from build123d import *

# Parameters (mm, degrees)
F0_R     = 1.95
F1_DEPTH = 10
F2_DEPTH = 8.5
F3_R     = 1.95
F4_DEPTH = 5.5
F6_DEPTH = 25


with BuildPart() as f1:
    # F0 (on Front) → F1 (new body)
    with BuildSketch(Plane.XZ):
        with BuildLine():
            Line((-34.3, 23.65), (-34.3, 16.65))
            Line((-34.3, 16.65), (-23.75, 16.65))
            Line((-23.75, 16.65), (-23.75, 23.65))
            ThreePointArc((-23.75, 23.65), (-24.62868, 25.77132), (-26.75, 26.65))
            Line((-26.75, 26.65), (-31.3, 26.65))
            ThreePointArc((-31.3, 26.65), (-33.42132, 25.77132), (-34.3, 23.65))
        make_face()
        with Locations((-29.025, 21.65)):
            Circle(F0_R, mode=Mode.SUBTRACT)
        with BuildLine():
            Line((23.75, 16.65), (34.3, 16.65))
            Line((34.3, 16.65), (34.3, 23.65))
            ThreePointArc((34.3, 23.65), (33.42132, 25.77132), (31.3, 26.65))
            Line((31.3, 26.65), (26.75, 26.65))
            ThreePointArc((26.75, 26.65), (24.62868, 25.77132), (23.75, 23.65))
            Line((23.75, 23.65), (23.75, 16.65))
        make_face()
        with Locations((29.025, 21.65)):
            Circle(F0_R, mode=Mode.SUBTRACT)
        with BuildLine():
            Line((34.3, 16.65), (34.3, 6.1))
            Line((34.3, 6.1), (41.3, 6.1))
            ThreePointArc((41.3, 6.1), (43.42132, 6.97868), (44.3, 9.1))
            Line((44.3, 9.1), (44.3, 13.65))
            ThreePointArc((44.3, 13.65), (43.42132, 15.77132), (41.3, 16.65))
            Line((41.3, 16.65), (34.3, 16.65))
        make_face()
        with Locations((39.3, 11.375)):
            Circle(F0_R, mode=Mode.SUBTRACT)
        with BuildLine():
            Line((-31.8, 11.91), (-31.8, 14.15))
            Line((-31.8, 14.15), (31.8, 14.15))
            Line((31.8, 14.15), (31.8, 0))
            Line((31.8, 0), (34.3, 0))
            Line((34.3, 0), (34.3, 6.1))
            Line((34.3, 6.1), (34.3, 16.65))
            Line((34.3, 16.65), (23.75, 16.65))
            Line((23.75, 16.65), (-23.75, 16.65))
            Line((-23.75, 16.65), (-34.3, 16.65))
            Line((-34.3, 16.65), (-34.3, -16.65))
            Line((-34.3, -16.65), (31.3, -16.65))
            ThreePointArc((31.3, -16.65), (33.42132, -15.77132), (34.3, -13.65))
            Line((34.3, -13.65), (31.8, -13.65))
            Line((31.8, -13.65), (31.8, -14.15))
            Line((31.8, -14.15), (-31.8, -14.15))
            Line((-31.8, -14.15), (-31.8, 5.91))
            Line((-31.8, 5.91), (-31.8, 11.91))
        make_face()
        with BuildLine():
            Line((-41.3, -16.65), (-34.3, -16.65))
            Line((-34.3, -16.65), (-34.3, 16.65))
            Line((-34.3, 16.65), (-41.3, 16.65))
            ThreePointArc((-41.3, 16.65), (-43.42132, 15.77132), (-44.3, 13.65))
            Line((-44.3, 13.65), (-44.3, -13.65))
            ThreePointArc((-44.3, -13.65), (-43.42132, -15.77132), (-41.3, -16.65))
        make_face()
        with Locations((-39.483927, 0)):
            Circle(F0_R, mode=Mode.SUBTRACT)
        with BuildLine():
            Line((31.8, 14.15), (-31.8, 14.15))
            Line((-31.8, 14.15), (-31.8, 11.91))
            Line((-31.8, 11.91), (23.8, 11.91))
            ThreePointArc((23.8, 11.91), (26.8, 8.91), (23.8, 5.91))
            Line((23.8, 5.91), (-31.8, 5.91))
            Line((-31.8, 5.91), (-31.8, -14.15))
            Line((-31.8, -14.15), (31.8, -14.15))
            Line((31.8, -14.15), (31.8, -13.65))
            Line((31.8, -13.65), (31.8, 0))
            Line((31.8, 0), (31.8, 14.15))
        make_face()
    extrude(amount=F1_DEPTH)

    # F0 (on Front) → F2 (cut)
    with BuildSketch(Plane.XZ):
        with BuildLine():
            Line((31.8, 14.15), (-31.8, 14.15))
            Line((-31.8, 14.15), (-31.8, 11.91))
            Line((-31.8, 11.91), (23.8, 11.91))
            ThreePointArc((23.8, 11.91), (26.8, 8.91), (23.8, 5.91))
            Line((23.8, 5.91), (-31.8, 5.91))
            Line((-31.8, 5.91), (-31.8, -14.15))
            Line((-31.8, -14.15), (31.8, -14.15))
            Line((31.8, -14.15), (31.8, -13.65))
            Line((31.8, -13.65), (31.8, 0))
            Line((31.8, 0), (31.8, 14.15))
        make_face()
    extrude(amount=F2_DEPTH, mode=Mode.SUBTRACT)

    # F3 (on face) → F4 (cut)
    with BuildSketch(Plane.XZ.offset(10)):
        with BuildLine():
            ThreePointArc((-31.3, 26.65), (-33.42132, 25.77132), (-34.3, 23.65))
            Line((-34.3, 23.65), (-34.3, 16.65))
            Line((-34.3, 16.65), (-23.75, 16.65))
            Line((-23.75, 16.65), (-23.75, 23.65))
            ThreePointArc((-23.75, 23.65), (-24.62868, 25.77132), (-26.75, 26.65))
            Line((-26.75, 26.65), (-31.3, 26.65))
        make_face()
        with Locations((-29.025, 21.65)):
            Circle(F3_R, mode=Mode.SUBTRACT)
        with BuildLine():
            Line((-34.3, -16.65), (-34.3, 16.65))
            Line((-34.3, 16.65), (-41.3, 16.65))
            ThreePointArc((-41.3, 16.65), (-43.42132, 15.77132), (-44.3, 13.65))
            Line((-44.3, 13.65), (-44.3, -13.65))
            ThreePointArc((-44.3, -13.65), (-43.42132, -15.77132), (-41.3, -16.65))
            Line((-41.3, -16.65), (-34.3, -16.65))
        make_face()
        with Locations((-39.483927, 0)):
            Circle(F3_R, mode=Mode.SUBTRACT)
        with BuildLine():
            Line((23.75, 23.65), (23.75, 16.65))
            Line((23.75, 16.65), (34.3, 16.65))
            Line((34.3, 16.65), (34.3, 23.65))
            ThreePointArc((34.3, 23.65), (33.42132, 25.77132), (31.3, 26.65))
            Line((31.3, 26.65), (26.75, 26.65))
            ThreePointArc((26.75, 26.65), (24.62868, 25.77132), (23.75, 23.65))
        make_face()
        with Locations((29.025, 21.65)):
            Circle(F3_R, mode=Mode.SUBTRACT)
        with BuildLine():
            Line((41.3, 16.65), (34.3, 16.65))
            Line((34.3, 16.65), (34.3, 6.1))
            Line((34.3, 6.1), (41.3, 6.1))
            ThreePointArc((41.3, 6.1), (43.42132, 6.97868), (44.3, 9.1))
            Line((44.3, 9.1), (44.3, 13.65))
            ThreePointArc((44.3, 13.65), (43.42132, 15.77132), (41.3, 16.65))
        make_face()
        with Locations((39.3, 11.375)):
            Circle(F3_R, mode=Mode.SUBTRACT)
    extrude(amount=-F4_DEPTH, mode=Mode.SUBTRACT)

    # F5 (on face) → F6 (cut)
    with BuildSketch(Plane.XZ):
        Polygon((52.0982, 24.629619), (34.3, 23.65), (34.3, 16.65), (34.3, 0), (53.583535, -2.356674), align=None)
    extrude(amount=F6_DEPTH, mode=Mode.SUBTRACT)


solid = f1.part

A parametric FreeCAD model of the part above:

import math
import FreeCAD as App
import Part
import Sketcher
Q = App.Units.Quantity


def add_polygon(sketch, points):
    """Adds a closed chain of lines whose ends are joined by coincident constraints."""
    first, n = sketch.GeometryCount, len(points)
    for a, b in zip(points, points[1:] + points[:1]):
        sketch.addGeometry(Part.LineSegment(App.Vector(*a, 0), App.Vector(*b, 0)), False)
    for i in range(n):
        sketch.addConstraint(Sketcher.Constraint("Coincident", first + i, 2, first + (i + 1) % n, 1))

doc = App.newDocument("Part")
body = doc.addObject("PartDesign::Body", "Body")

# Sketch on XZ plane
sketch1 = body.newObject("Sketcher::SketchObject", "Sketch")
sketch1.AttachmentSupport = (doc.getObject("XZ_Plane"), [""])
sketch1.MapMode = "FlatFace"
sketch1.addGeometry([
    Part.LineSegment(App.Vector(-34.3, 23.6, 0), App.Vector(-34.3, 16.6, 0)),  # 0
    Part.LineSegment(App.Vector(-34.3, 16.6, 0), App.Vector(-41.3, 16.6, 0)),  # 1
    Part.ArcOfCircle(Part.Circle(App.Vector(-41.3, 13.6, 0), App.Vector(0, 0, 1), 3), math.radians(90), math.radians(180)),  # 2
    Part.LineSegment(App.Vector(-44.3, 13.7, 0), App.Vector(-44.3, -13.7, 0)),  # 3
    Part.ArcOfCircle(Part.Circle(App.Vector(-41.3, -13.6, 0), App.Vector(0, 0, 1), 3), math.radians(-180), math.radians(-90)),  # 4
    Part.LineSegment(App.Vector(-41.3, -16.6, 0), App.Vector(31.3, -16.6, 0)),  # 5
    Part.ArcOfCircle(Part.Circle(App.Vector(31.3, -13.6, 0), App.Vector(0, 0, 1), 3), math.radians(-90), math.radians(0)),  # 6
    Part.LineSegment(App.Vector(34.3, -13.7, 0), App.Vector(31.8, -13.7, 0)),  # 7
    Part.LineSegment(App.Vector(31.8, -13.7, 0), App.Vector(31.8, 0, 0)),  # 8
    Part.LineSegment(App.Vector(31.8, 0, 0), App.Vector(34.3, 0, 0)),  # 9
    Part.LineSegment(App.Vector(34.3, 0, 0), App.Vector(34.3, 6.1, 0)),  # 10
    Part.LineSegment(App.Vector(34.3, 6.1, 0), App.Vector(41.3, 6.1, 0)),  # 11
    Part.ArcOfCircle(Part.Circle(App.Vector(41.3, 9.1, 0), App.Vector(0, 0, 1), 3), math.radians(-90), math.radians(0)),  # 12
    Part.LineSegment(App.Vector(44.3, 9.1, 0), App.Vector(44.3, 13.7, 0)),  # 13
    Part.ArcOfCircle(Part.Circle(App.Vector(41.3, 13.6, 0), App.Vector(0, 0, 1), 3), math.radians(0), math.radians(90)),  # 14
    Part.LineSegment(App.Vector(41.3, 16.6, 0), App.Vector(34.3, 16.6, 0)),  # 15
    Part.LineSegment(App.Vector(34.3, 16.6, 0), App.Vector(34.3, 23.6, 0)),  # 16
    Part.ArcOfCircle(Part.Circle(App.Vector(31.3, 23.6, 0), App.Vector(0, 0, 1), 3), math.radians(0), math.radians(90)),  # 17
    Part.LineSegment(App.Vector(31.3, 26.6, 0), App.Vector(26.8, 26.6, 0)),  # 18
    Part.ArcOfCircle(Part.Circle(App.Vector(26.8, 23.6, 0), App.Vector(0, 0, 1), 3), math.radians(90), math.radians(180)),  # 19
    Part.LineSegment(App.Vector(23.8, 23.6, 0), App.Vector(23.8, 16.6, 0)),  # 20
    Part.LineSegment(App.Vector(23.8, 16.6, 0), App.Vector(-23.8, 16.6, 0)),  # 21
    Part.LineSegment(App.Vector(-23.8, 16.6, 0), App.Vector(-23.8, 23.6, 0)),  # 22
    Part.ArcOfCircle(Part.Circle(App.Vector(-26.8, 23.6, 0), App.Vector(0, 0, 1), 3), math.radians(0), math.radians(90)),  # 23
    Part.LineSegment(App.Vector(-26.8, 26.6, 0), App.Vector(-31.3, 26.6, 0)),  # 24
    Part.ArcOfCircle(Part.Circle(App.Vector(-31.3, 23.6, 0), App.Vector(0, 0, 1), 3), math.radians(90), math.radians(180)),  # 25
    Part.LineSegment(App.Vector(-31.8, 5.9, 0), App.Vector(-31.8, 11.9, 0)),  # 26
    Part.LineSegment(App.Vector(-31.8, 11.9, 0), App.Vector(23.8, 11.9, 0)),  # 27
    Part.ArcOfCircle(Part.Circle(App.Vector(23.8, 8.9, 0), App.Vector(0, 0, 1), 3), math.radians(-90), math.radians(90)),  # 28
    Part.LineSegment(App.Vector(23.8, 5.9, 0), App.Vector(-31.8, 5.9, 0)),  # 29
    Part.Circle(App.Vector(-39.5, 0, 0), App.Vector(0, 0, 1), 1.9),  # 30
    Part.Circle(App.Vector(-29, 21.6, 0), App.Vector(0, 0, 1), 1.9),  # 31
    Part.Circle(App.Vector(39.3, 11.4, 0), App.Vector(0, 0, 1), 1.9),  # 32
    Part.Circle(App.Vector(29, 21.6, 0), App.Vector(0, 0, 1), 1.9),  # 33
], False)
sketch1.addConstraint([
    Sketcher.Constraint("Coincident", 0, 2, 1, 1),
    Sketcher.Constraint("Tangent", 1, 2, 2, 1),
    Sketcher.Constraint("Tangent", 2, 2, 3, 1),
    Sketcher.Constraint("Tangent", 3, 2, 4, 1),
    Sketcher.Constraint("Tangent", 4, 2, 5, 1),
    Sketcher.Constraint("Tangent", 5, 2, 6, 1),
    Sketcher.Constraint("Coincident", 6, 2, 7, 1),
    Sketcher.Constraint("Coincident", 7, 2, 8, 1),
    Sketcher.Constraint("Coincident", 8, 2, 9, 1),
    Sketcher.Constraint("Coincident", 9, 2, 10, 1),
    Sketcher.Constraint("Coincident", 10, 2, 11, 1),
    Sketcher.Constraint("Tangent", 11, 2, 12, 1),
    Sketcher.Constraint("Tangent", 12, 2, 13, 1),
    Sketcher.Constraint("Tangent", 13, 2, 14, 1),
    Sketcher.Constraint("Tangent", 14, 2, 15, 1),
    Sketcher.Constraint("Coincident", 15, 2, 16, 1),
    Sketcher.Constraint("Tangent", 16, 2, 17, 1),
    Sketcher.Constraint("Tangent", 17, 2, 18, 1),
    Sketcher.Constraint("Tangent", 18, 2, 19, 1),
    Sketcher.Constraint("Tangent", 19, 2, 20, 1),
    Sketcher.Constraint("Coincident", 20, 2, 21, 1),
    Sketcher.Constraint("Coincident", 21, 2, 22, 1),
    Sketcher.Constraint("Tangent", 22, 2, 23, 1),
    Sketcher.Constraint("Tangent", 23, 2, 24, 1),
    Sketcher.Constraint("Tangent", 24, 2, 25, 1),
    Sketcher.Constraint("Tangent", 25, 2, 0, 1),
    Sketcher.Constraint("Coincident", 26, 2, 27, 1),
    Sketcher.Constraint("Tangent", 27, 2, 28, 2),
    Sketcher.Constraint("Tangent", 28, 1, 29, 1),
    Sketcher.Constraint("Coincident", 29, 2, 26, 1),
    Sketcher.Constraint("Vertical", 0),
    Sketcher.Constraint("Horizontal", 1),
    Sketcher.Constraint("Vertical", 3),
    Sketcher.Constraint("Horizontal", 5),
    Sketcher.Constraint("Horizontal", 7),
    Sketcher.Constraint("Vertical", 8),
    Sketcher.Constraint("Horizontal", 9),
    Sketcher.Constraint("Vertical", 10),
    Sketcher.Constraint("Horizontal", 11),
    Sketcher.Constraint("Vertical", 13),
    Sketcher.Constraint("Horizontal", 15),
    Sketcher.Constraint("Vertical", 16),
    Sketcher.Constraint("Horizontal", 18),
    Sketcher.Constraint("Vertical", 20),
    Sketcher.Constraint("Horizontal", 21),
    Sketcher.Constraint("Vertical", 22),
    Sketcher.Constraint("Horizontal", 24),
    Sketcher.Constraint("Vertical", 26),
    Sketcher.Constraint("Horizontal", 27),
    Sketcher.Constraint("Horizontal", 29),
    Sketcher.Constraint("Equal", 2, 4),
    Sketcher.Constraint("Equal", 4, 6),
    Sketcher.Constraint("Equal", 6, 12),
    Sketcher.Constraint("Equal", 12, 14),
    Sketcher.Constraint("Equal", 14, 17),
    Sketcher.Constraint("Equal", 17, 19),
    Sketcher.Constraint("Equal", 19, 23),
    Sketcher.Constraint("Equal", 23, 25),
    Sketcher.Constraint("Equal", 25, 28),
    Sketcher.Constraint("Equal", 30, 31),
    Sketcher.Constraint("Equal", 31, 32),
    Sketcher.Constraint("Equal", 32, 33),
    Sketcher.Constraint("Symmetric", 4, 3, 14, 3, -1, 1),
    Sketcher.Constraint("Symmetric", 19, 3, 23, 3, -2),
    Sketcher.Constraint("Symmetric", 31, 3, 33, 3, -2),
    Sketcher.Constraint("Symmetric", 0, 2, 15, 2, -2),
    Sketcher.Constraint("PointOnObject", 30, 3, -1),
    Sketcher.Constraint("PointOnObject", 8, 2, -1),
    Sketcher.Constraint("Horizontal", 3, 2, 6, 2),
    Sketcher.Constraint("Horizontal", 15, 2, 20, 2),
    Sketcher.Constraint("Vertical", 6, 3, 17, 3),
    Sketcher.Constraint("Vertical", 6, 2, 9, 2),
    Sketcher.Constraint("Equal", 15, 0),
    Sketcher.Constraint("Equal", 24, 13),
    Sketcher.Constraint("Radius", 2, Q("3.000001 mm")),
    Sketcher.Constraint("Diameter", 30, Q("3.9 mm")),
    Sketcher.Constraint("DistanceX", 1, 2, 1, 1, Q("7 mm")),
    Sketcher.Constraint("DistanceX", 5, 1, 5, 2, Q("72.6 mm")),
    Sketcher.Constraint("DistanceX", 7, 2, 7, 1, Q("2.5 mm")),
    Sketcher.Constraint("DistanceX", 21, 2, 21, 1, Q("47.5 mm")),
    Sketcher.Constraint("DistanceX", 27, 1, 27, 2, Q("55.6 mm")),
    Sketcher.Constraint("DistanceY", 3, 2, 3, 1, Q("27.3 mm")),
    Sketcher.Constraint("DistanceY", 31, 3, 23, 3, Q("1.999999 mm")),
    Sketcher.Constraint("DistanceX", 32, 3, 12, 3, Q("1.999999 mm")),
    Sketcher.Constraint("DistanceX", 28, 3, 7, 2, Q("8 mm")),
    Sketcher.Constraint("DistanceY", -1, 1, 28, 3, Q("8.91 mm")),
    Sketcher.Constraint("DistanceX", 31, 3, -1, 1, Q("29.025 mm")),
    Sketcher.Constraint("DistanceY", -1, 1, 32, 3, Q("11.375 mm")),
    Sketcher.Constraint("DistanceX", 2, 3, 30, 3, Q("1.816072 mm")),
])
pad1 = body.newObject("PartDesign::Pad", "Pad")
pad1.Profile = sketch1
pad1.Length = 10

# Sketch on XZ plane
sketch2 = body.newObject("Sketcher::SketchObject", "Sketch001")
sketch2.AttachmentSupport = (doc.getObject("XZ_Plane"), [""])
sketch2.MapMode = "FlatFace"
sketch2.addGeometry([
    Part.LineSegment(App.Vector(31.8, 14.2, 0), App.Vector(-31.8, 14.2, 0)),  # 0
    Part.LineSegment(App.Vector(-31.8, 14.2, 0), App.Vector(-31.8, 11.9, 0)),  # 1
    Part.LineSegment(App.Vector(-31.8, 11.9, 0), App.Vector(23.8, 11.9, 0)),  # 2
    Part.ArcOfCircle(Part.Circle(App.Vector(23.8, 8.9, 0), App.Vector(0, 0, 1), 3), math.radians(-90), math.radians(90)),  # 3
    Part.LineSegment(App.Vector(23.8, 5.9, 0), App.Vector(-31.8, 5.9, 0)),  # 4
    Part.LineSegment(App.Vector(-31.8, 5.9, 0), App.Vector(-31.8, -14.2, 0)),  # 5
    Part.LineSegment(App.Vector(-31.8, -14.2, 0), App.Vector(31.8, -14.2, 0)),  # 6
    Part.LineSegment(App.Vector(31.8, -14.2, 0), App.Vector(31.8, 14.2, 0)),  # 7
], False)
sketch2.addConstraint([
    Sketcher.Constraint("Coincident", 0, 2, 1, 1),
    Sketcher.Constraint("Coincident", 1, 2, 2, 1),
    Sketcher.Constraint("Tangent", 2, 2, 3, 2),
    Sketcher.Constraint("Tangent", 3, 1, 4, 1),
    Sketcher.Constraint("Coincident", 4, 2, 5, 1),
    Sketcher.Constraint("Coincident", 5, 2, 6, 1),
    Sketcher.Constraint("Coincident", 6, 2, 7, 1),
    Sketcher.Constraint("Coincident", 7, 2, 0, 1),
    Sketcher.Constraint("Horizontal", 0),
    Sketcher.Constraint("Vertical", 1),
    Sketcher.Constraint("Horizontal", 2),
    Sketcher.Constraint("Horizontal", 4),
    Sketcher.Constraint("Vertical", 5),
    Sketcher.Constraint("Horizontal", 6),
    Sketcher.Constraint("Vertical", 7),
    Sketcher.Constraint("Symmetric", 0, 2, 6, 2, -1, 1),
    Sketcher.Constraint("Vertical", 1, 2, 4, 2),
    Sketcher.Constraint("Radius", 3, Q("3 mm")),
    Sketcher.Constraint("DistanceX", 0, 2, 0, 1, Q("63.6 mm")),
    Sketcher.Constraint("DistanceX", 2, 1, 2, 2, Q("55.6 mm")),
    Sketcher.Constraint("DistanceY", 7, 1, 7, 2, Q("28.3 mm")),
    Sketcher.Constraint("DistanceY", 1, 2, 1, 1, Q("2.24 mm")),
])
pocket1 = body.newObject("PartDesign::Pocket", "Pocket")
pocket1.Profile = sketch2
pocket1.Length = 8.5
pocket1.Reversed = True

# Sketch on XZ plane
sketch3 = body.newObject("Sketcher::SketchObject", "Sketch002")
sketch3.AttachmentSupport = (doc.getObject("XZ_Plane"), [""])
sketch3.MapMode = "FlatFace"
sketch3.AttachmentOffset = App.Placement(App.Vector(0, 0, 10), App.Rotation())
sketch3.addGeometry([
    Part.ArcOfCircle(Part.Circle(App.Vector(-31.3, 23.6, 0), App.Vector(0, 0, 1), 3), math.radians(90), math.radians(180)),  # 0
    Part.LineSegment(App.Vector(-34.3, 23.6, 0), App.Vector(-34.3, 16.6, 0)),  # 1
    Part.LineSegment(App.Vector(-34.3, 16.6, 0), App.Vector(-23.8, 16.6, 0)),  # 2
    Part.LineSegment(App.Vector(-23.8, 16.6, 0), App.Vector(-23.8, 23.6, 0)),  # 3
    Part.ArcOfCircle(Part.Circle(App.Vector(-26.8, 23.6, 0), App.Vector(0, 0, 1), 3), math.radians(0), math.radians(90)),  # 4
    Part.LineSegment(App.Vector(-26.8, 26.6, 0), App.Vector(-31.3, 26.6, 0)),  # 5
    Part.Circle(App.Vector(-29, 21.6, 0), App.Vector(0, 0, 1), 1.9),  # 6
    Part.LineSegment(App.Vector(-34.3, -16.6, 0), App.Vector(-34.3, 16.6, 0)),  # 7
    Part.LineSegment(App.Vector(-34.3, 16.6, 0), App.Vector(-41.3, 16.6, 0)),  # 8
    Part.ArcOfCircle(Part.Circle(App.Vector(-41.3, 13.6, 0), App.Vector(0, 0, 1), 3), math.radians(90), math.radians(180)),  # 9
    Part.LineSegment(App.Vector(-44.3, 13.7, 0), App.Vector(-44.3, -13.7, 0)),  # 10
    Part.ArcOfCircle(Part.Circle(App.Vector(-41.3, -13.6, 0), App.Vector(0, 0, 1), 3), math.radians(-180), math.radians(-90)),  # 11
    Part.LineSegment(App.Vector(-41.3, -16.6, 0), App.Vector(-34.3, -16.6, 0)),  # 12
    Part.Circle(App.Vector(-39.5, 0, 0), App.Vector(0, 0, 1), 1.9),  # 13
    Part.LineSegment(App.Vector(23.8, 23.6, 0), App.Vector(23.8, 16.6, 0)),  # 14
    Part.LineSegment(App.Vector(23.8, 16.6, 0), App.Vector(34.3, 16.6, 0)),  # 15
    Part.LineSegment(App.Vector(34.3, 16.6, 0), App.Vector(34.3, 23.6, 0)),  # 16
    Part.ArcOfCircle(Part.Circle(App.Vector(31.3, 23.6, 0), App.Vector(0, 0, 1), 3), math.radians(0), math.radians(90)),  # 17
    Part.LineSegment(App.Vector(31.3, 26.6, 0), App.Vector(26.8, 26.6, 0)),  # 18
    Part.ArcOfCircle(Part.Circle(App.Vector(26.8, 23.6, 0), App.Vector(0, 0, 1), 3), math.radians(90), math.radians(180)),  # 19
    Part.Circle(App.Vector(29, 21.6, 0), App.Vector(0, 0, 1), 1.9),  # 20
    Part.LineSegment(App.Vector(41.3, 16.6, 0), App.Vector(34.3, 16.6, 0)),  # 21
    Part.LineSegment(App.Vector(34.3, 16.6, 0), App.Vector(34.3, 6.1, 0)),  # 22
    Part.LineSegment(App.Vector(34.3, 6.1, 0), App.Vector(41.3, 6.1, 0)),  # 23
    Part.ArcOfCircle(Part.Circle(App.Vector(41.3, 9.1, 0), App.Vector(0, 0, 1), 3), math.radians(-90), math.radians(0)),  # 24
    Part.LineSegment(App.Vector(44.3, 9.1, 0), App.Vector(44.3, 13.7, 0)),  # 25
    Part.ArcOfCircle(Part.Circle(App.Vector(41.3, 13.6, 0), App.Vector(0, 0, 1), 3), math.radians(0), math.radians(90)),  # 26
    Part.Circle(App.Vector(39.3, 11.4, 0), App.Vector(0, 0, 1), 1.9),  # 27
], False)
sketch3.addConstraint([
    Sketcher.Constraint("Tangent", 0, 2, 1, 1),
    Sketcher.Constraint("Coincident", 1, 2, 2, 1),
    Sketcher.Constraint("Coincident", 2, 2, 3, 1),
    Sketcher.Constraint("Tangent", 3, 2, 4, 1),
    Sketcher.Constraint("Tangent", 4, 2, 5, 1),
    Sketcher.Constraint("Tangent", 5, 2, 0, 1),
    Sketcher.Constraint("Coincident", 7, 2, 8, 1),
    Sketcher.Constraint("Tangent", 8, 2, 9, 1),
    Sketcher.Constraint("Tangent", 9, 2, 10, 1),
    Sketcher.Constraint("Tangent", 10, 2, 11, 1),
    Sketcher.Constraint("Tangent", 11, 2, 12, 1),
    Sketcher.Constraint("Coincident", 12, 2, 7, 1),
    Sketcher.Constraint("Coincident", 14, 2, 15, 1),
    Sketcher.Constraint("Coincident", 15, 2, 16, 1),
    Sketcher.Constraint("Tangent", 16, 2, 17, 1),
    Sketcher.Constraint("Tangent", 17, 2, 18, 1),
    Sketcher.Constraint("Tangent", 18, 2, 19, 1),
    Sketcher.Constraint("Tangent", 19, 2, 14, 1),
    Sketcher.Constraint("Coincident", 21, 2, 22, 1),
    Sketcher.Constraint("Coincident", 22, 2, 23, 1),
    Sketcher.Constraint("Tangent", 23, 2, 24, 1),
    Sketcher.Constraint("Tangent", 24, 2, 25, 1),
    Sketcher.Constraint("Tangent", 25, 2, 26, 1),
    Sketcher.Constraint("Tangent", 26, 2, 21, 1),
    Sketcher.Constraint("Vertical", 1),
    Sketcher.Constraint("Horizontal", 2),
    Sketcher.Constraint("Vertical", 3),
    Sketcher.Constraint("Horizontal", 5),
    Sketcher.Constraint("Vertical", 7),
    Sketcher.Constraint("Horizontal", 8),
    Sketcher.Constraint("Vertical", 10),
    Sketcher.Constraint("Horizontal", 12),
    Sketcher.Constraint("Vertical", 14),
    Sketcher.Constraint("Horizontal", 15),
    Sketcher.Constraint("Vertical", 16),
    Sketcher.Constraint("Horizontal", 18),
    Sketcher.Constraint("Horizontal", 21),
    Sketcher.Constraint("Vertical", 22),
    Sketcher.Constraint("Horizontal", 23),
    Sketcher.Constraint("Vertical", 25),
    Sketcher.Constraint("Coincident", 7, 2, 1, 2),
    Sketcher.Constraint("Coincident", 21, 2, 15, 2),
    Sketcher.Constraint("Equal", 0, 4),
    Sketcher.Constraint("Equal", 4, 9),
    Sketcher.Constraint("Equal", 9, 11),
    Sketcher.Constraint("Equal", 6, 13),
    Sketcher.Constraint("Equal", 11, 17),
    Sketcher.Constraint("Equal", 17, 19),
    Sketcher.Constraint("Equal", 13, 20),
    Sketcher.Constraint("Equal", 19, 24),
    Sketcher.Constraint("Equal", 24, 26),
    Sketcher.Constraint("Equal", 20, 27),
    Sketcher.Constraint("Symmetric", 11, 3, 26, 3, -1, 1),
    Sketcher.Constraint("Symmetric", 0, 3, 17, 3, -2),
    Sketcher.Constraint("Symmetric", 6, 3, 20, 3, -2),
    Sketcher.Constraint("Symmetric", 2, 2, 14, 2, -2),
    Sketcher.Constraint("PointOnObject", 13, 3, -1),
    Sketcher.Constraint("Equal", 23, 1),
    Sketcher.Constraint("Equal", 15, 22),
    Sketcher.Constraint("Radius", 0, Q("3.000001 mm")),
    Sketcher.Constraint("Diameter", 6, Q("3.9 mm")),
    Sketcher.Constraint("DistanceX", 8, 2, 8, 1, Q("7 mm")),
    Sketcher.Constraint("DistanceY", 7, 1, 7, 2, Q("33.3 mm")),
    Sketcher.Constraint("DistanceY", 6, 3, 4, 3, Q("1.999999 mm")),
    Sketcher.Constraint("DistanceX", 27, 3, 24, 3, Q("1.999999 mm")),
    Sketcher.Constraint("DistanceX", 2, 1, 2, 2, Q("10.55 mm")),
    Sketcher.Constraint("DistanceX", 0, 3, -1, 1, Q("31.299999 mm")),
    Sketcher.Constraint("DistanceX", 6, 3, 20, 3, Q("58.05 mm")),
    Sketcher.Constraint("DistanceY", -1, 1, 27, 3, Q("11.375 mm")),
    Sketcher.Constraint("DistanceX", 9, 3, 13, 3, Q("1.816072 mm")),
])
pocket2 = body.newObject("PartDesign::Pocket", "Pocket001")
pocket2.Profile = sketch3
pocket2.Length = 5.5

# Sketch on XZ plane
sketch4 = body.newObject("Sketcher::SketchObject", "Sketch003")
sketch4.AttachmentSupport = (doc.getObject("XZ_Plane"), [""])
sketch4.MapMode = "FlatFace"
add_polygon(sketch4, [(52, 25), (34, 24), (34, 0), (54, -2)])  # lines 0-3
sketch4.addConstraint([
    Sketcher.Constraint("Vertical", 1),
    Sketcher.Constraint("PointOnObject", 1, 2, -1),
    Sketcher.Constraint("Perpendicular", 0, 3),
    Sketcher.Constraint("DistanceY", 1, 2, 1, 1, Q("23.65 mm")),
    Sketcher.Constraint("DistanceX", -1, 1, 0, 2, Q("34.3 mm")),
    Sketcher.Constraint("DistanceX", -1, 1, 3, 2, Q("52.0982 mm")),
    Sketcher.Constraint("Distance", 0, Q("17.825139 mm")),
    Sketcher.Constraint("Distance", 3, Q("27.027139 mm")),
])
pocket3 = body.newObject("PartDesign::Pocket", "Pocket002")
pocket3.Profile = sketch4
pocket3.Length = 25
pocket3.Reversed = True

doc.recompute()
